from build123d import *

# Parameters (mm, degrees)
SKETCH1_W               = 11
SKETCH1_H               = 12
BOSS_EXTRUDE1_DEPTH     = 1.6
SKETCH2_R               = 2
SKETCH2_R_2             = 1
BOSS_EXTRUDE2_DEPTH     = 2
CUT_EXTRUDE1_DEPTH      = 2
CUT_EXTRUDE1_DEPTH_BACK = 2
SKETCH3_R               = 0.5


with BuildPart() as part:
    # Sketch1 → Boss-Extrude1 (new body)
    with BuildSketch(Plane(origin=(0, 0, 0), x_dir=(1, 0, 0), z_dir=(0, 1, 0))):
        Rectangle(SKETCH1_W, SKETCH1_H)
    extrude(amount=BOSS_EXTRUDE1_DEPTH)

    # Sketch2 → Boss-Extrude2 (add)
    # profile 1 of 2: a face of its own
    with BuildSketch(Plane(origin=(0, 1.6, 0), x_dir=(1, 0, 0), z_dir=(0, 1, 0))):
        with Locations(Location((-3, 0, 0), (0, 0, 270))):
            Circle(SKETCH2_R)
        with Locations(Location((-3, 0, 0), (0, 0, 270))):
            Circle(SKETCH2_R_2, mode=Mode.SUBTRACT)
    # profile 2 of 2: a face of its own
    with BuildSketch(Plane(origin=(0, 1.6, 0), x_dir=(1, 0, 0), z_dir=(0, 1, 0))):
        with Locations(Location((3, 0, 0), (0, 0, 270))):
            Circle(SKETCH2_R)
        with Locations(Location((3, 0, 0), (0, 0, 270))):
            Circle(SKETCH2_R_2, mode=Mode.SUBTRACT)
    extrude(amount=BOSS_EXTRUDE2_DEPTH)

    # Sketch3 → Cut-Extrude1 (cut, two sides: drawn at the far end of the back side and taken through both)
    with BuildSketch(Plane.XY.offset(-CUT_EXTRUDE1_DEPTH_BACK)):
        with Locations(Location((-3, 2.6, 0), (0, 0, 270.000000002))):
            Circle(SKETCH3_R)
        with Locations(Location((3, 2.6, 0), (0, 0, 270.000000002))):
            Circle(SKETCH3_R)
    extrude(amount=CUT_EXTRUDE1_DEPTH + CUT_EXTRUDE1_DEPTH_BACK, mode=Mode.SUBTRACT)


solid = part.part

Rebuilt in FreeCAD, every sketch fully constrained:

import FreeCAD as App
import Part
import Sketcher


def add_polygon(sketch, points):
    """Adds a closed chain of lines whose ends are joined by coincident constraints."""
    first, n = sketch.GeometryCount, len(points)
    for a, b in zip(points, points[1:] + points[:1]):
        sketch.addGeometry(Part.LineSegment(App.Vector(*a, 0), App.Vector(*b, 0)), False)
    for i in range(n):
        sketch.addConstraint(Sketcher.Constraint("Coincident", first + i, 2, first + (i + 1) % n, 1))

doc = App.newDocument("Part")
params = doc.addObject("Spreadsheet::Sheet", "Params")
for row, (alias, value) in enumerate([
    ("sketch1_width", "11 mm"),
    ("sketch1_height", "12 mm"),
    ("pad1_length", "1.6 mm"),
    ("sketch2_diameter", "4 mm"),
    ("sketch2_diameter2", "2 mm"),
    ("pad2_length", "2 mm"),
    ("sketch3_diameter", "1 mm"),
], start=1):
    params.set(f"A{row}", alias)
    params.set(f"B{row}", "=" + value)
    params.setAlias(f"B{row}", alias)

body = doc.addObject("PartDesign::Body", "Body")

# Sketch on XZ plane
sketch1 = doc.addObject("Sketcher::SketchObject", "Sketch")
body.addObject(sketch1)
sketch1.AttachmentSupport = (doc.XZ_Plane, [""])
sketch1.MapMode = "FlatFace"
add_polygon(sketch1, [(-6, -6), (-6, 6), (6, 6), (6, -6)])  # lines 0-3
sketch1.addConstraint(Sketcher.Constraint("Vertical", 0))
sketch1.addConstraint(Sketcher.Constraint("Horizontal", 1))
sketch1.addConstraint(Sketcher.Constraint("Vertical", 2))
sketch1.addConstraint(Sketcher.Constraint("Horizontal", 3))
sketch1.addConstraint(Sketcher.Constraint("Symmetric", 0, 2, 2, 2, -1, 1))
sketch1.addConstraint(Sketcher.Constraint("DistanceX", 1, 1, 1, 2, 11.0))
sketch1.addConstraint(Sketcher.Constraint("DistanceY", 0, 1, 0, 2, 12.0))
sketch1.setExpression("Constraints[9]", "Params.sketch1_width")
sketch1.setExpression("Constraints[10]", "Params.sketch1_height")
pad1 = doc.addObject("PartDesign::Pad", "Pad")
body.addObject(pad1)
pad1.Profile = sketch1
pad1.setExpression("Length", "Params.pad1_length")
pad1.Reversed = True

# Sketch on XZ plane
sketch2 = doc.addObject("Sketcher::SketchObject", "Sketch001")
body.addObject(sketch2)
sketch2.AttachmentSupport = (doc.XZ_Plane, [""])
sketch2.MapMode = "FlatFace"
sketch2.AttachmentOffset = App.Placement(App.Vector(0, 0, -1.6), App.Rotation())
sketch2.addGeometry(Part.Circle(App.Vector(-3, 0, 0), App.Vector(0, 0, 1), 2), False)
sketch2.addGeometry(Part.Circle(App.Vector(-3, 0, 0), App.Vector(0, 0, 1), 1), False)
sketch2.addGeometry(Part.Circle(App.Vector(3, 0, 0), App.Vector(0, 0, 1), 2), False)
sketch2.addGeometry(Part.Circle(App.Vector(3, 0, 0), App.Vector(0, 0, 1), 1), False)
sketch2.addConstraint(Sketcher.Constraint("Coincident", 1, 3, 0, 3))
sketch2.addConstraint(Sketcher.Constraint("Coincident", 3, 3, 2, 3))
sketch2.addConstraint(Sketcher.Constraint("Equal", 0, 2))
sketch2.addConstraint(Sketcher.Constraint("Equal", 1, 3))
sketch2.addConstraint(Sketcher.Constraint("Symmetric", 0, 3, 2, 3, -1, 1))
sketch2.addConstraint(Sketcher.Constraint("PointOnObject", 0, 3, -1))
sketch2.addConstraint(Sketcher.Constraint("Diameter", 0, 4.0))
sketch2.addConstraint(Sketcher.Constraint("Diameter", 1, 2.0))
sketch2.addConstraint(Sketcher.Constraint("DistanceX", 0, 3, -1, 1, 3.0))
sketch2.setExpression("Constraints[6]", "Params.sketch2_diameter")
sketch2.setExpression("Constraints[7]", "Params.sketch2_diameter2")
pad2 = doc.addObject("PartDesign::Pad", "Pad001")
body.addObject(pad2)
pad2.Profile = sketch2
pad2.setExpression("Length", "Params.pad2_length")
pad2.Reversed = True

# Sketch on XY plane
sketch3 = doc.addObject("Sketcher::SketchObject", "Sketch002")
body.addObject(sketch3)
sketch3.AttachmentSupport = (doc.XY_Plane, [""])
sketch3.MapMode = "FlatFace"
sketch3.addGeometry(Part.Circle(App.Vector(-3, 2.6, 0), App.Vector(0, 0, 1), 0.5), False)
sketch3.addGeometry(Part.Circle(App.Vector(3, 2.6, 0), App.Vector(0, 0, 1), 0.5), False)
sketch3.addConstraint(Sketcher.Constraint("Equal", 0, 1))
sketch3.addConstraint(Sketcher.Constraint("Symmetric", 0, 3, 1, 3, -2))
sketch3.addConstraint(Sketcher.Constraint("Diameter", 0, 1.0))
sketch3.addConstraint(Sketcher.Constraint("DistanceX", 0, 3, -1, 1, 3.0))
sketch3.addConstraint(Sketcher.Constraint("DistanceY", -1, 1, 0, 3, 2.6))
sketch3.setExpression("Constraints[2]", "Params.sketch3_diameter")
pocket1 = doc.addObject("PartDesign::Pocket", "Pocket")
body.addObject(pocket1)
pocket1.Profile = sketch3
pocket1.Type = "ThroughAll"
pocket1.Midplane = True

doc.recompute()
